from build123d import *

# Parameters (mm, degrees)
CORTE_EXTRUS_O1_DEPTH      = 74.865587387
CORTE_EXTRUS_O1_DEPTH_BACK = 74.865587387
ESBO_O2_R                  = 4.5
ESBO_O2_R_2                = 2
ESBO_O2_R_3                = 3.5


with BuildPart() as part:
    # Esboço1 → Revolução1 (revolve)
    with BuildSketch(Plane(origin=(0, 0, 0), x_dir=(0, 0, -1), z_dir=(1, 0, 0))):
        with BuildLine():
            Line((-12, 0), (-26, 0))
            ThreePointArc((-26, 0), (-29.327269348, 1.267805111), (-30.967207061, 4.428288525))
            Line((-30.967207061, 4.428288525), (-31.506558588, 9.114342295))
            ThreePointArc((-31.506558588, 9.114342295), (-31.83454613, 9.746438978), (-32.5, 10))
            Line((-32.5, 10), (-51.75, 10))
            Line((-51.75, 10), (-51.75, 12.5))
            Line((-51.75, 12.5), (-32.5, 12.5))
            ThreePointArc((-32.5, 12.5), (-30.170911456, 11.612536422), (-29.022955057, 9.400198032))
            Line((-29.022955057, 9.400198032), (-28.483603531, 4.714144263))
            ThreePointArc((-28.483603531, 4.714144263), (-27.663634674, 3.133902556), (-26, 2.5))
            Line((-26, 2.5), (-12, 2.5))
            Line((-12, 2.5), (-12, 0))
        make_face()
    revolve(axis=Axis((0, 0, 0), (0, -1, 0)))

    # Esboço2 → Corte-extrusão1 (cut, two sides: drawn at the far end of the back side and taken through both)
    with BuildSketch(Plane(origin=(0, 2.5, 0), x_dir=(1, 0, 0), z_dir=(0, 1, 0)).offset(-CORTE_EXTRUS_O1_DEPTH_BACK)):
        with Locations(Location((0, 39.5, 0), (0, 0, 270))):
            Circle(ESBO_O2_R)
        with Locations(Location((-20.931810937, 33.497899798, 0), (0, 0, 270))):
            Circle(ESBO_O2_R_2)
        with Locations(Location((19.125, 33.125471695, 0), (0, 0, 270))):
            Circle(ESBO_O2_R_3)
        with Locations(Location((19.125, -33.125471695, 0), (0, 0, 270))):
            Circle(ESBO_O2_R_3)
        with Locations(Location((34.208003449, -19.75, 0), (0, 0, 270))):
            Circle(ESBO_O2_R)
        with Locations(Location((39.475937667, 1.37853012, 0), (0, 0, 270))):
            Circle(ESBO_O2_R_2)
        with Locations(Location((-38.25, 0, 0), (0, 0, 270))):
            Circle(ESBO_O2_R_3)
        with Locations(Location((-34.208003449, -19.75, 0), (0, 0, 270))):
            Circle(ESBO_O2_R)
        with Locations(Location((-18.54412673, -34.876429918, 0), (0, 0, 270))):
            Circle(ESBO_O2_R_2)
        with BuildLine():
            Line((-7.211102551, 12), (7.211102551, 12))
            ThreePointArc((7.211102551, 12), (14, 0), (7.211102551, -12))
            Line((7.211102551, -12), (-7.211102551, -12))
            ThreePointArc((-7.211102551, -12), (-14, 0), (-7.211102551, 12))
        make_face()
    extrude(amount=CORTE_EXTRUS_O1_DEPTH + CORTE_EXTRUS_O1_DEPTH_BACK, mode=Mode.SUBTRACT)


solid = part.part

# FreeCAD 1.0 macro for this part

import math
import FreeCAD as App
import Part
import Sketcher

V = App.Vector

doc = App.newDocument("Part")
body = doc.addObject("PartDesign::Body", "Body")

sketch1 = body.newObject("Sketcher::SketchObject", "Sketch")
sketch1.AttachmentSupport = (doc.getObject("YZ_Plane"), [""])
sketch1.MapMode = "FlatFace"
sketch1.addGeometry([
    Part.LineSegment(V(0, 26, 0), V(0, 12, 0)),
    Part.LineSegment(V(0, 12, 0), V(2.5, 12, 0)),
    Part.LineSegment(V(2.5, 12, 0), V(2.5, 26, 0)),
    Part.ArcOfCircle(Part.Circle(V(5, 26, 0), V(0, 0, 1), 2.5), math.radians(96.565691), math.radians(180)),
    Part.LineSegment(V(4.714144, 28.483604, 0), V(9.400198, 29.022955, 0)),
    Part.ArcOfCircle(Part.Circle(V(9, 32.5, 0), V(0, 0, 1), 3.5), math.radians(-83.434309), math.radians(0)),
    Part.LineSegment(V(12.5, 32.5, 0), V(12.5, 51.75, 0)),
    Part.LineSegment(V(12.5, 51.75, 0), V(10, 51.75, 0)),
    Part.LineSegment(V(10, 51.75, 0), V(10, 32.5, 0)),
    Part.ArcOfCircle(Part.Circle(V(9, 32.5, 0), V(0, 0, 1), 1), math.radians(-83.434309), math.radians(0)),
    Part.LineSegment(V(9.114342, 31.506559, 0), V(4.428289, 30.967207, 0)),
    Part.ArcOfCircle(Part.Circle(V(5, 26, 0), V(0, 0, 1), 5), math.radians(96.565691), math.radians(180)),
], False)
sketch1.addConstraint([
    Sketcher.Constraint("Coincident", 0, 2, 1, 1),
    Sketcher.Constraint("Coincident", 1, 2, 2, 1),
    Sketcher.Constraint("Tangent", 2, 2, 3, 2),
    Sketcher.Constraint("Tangent", 3, 1, 4, 1),
    Sketcher.Constraint("Tangent", 4, 2, 5, 1),
    Sketcher.Constraint("Tangent", 5, 2, 6, 1),
    Sketcher.Constraint("Coincident", 6, 2, 7, 1),
    Sketcher.Constraint("Coincident", 7, 2, 8, 1),
    Sketcher.Constraint("Tangent", 8, 2, 9, 2),
    Sketcher.Constraint("Tangent", 9, 1, 10, 1),
    Sketcher.Constraint("Tangent", 10, 2, 11, 1),
    Sketcher.Constraint("Tangent", 11, 2, 0, 1),
    Sketcher.Constraint("Vertical", 0),
    Sketcher.Constraint("Horizontal", 1),
    Sketcher.Constraint("Vertical", 2),
    Sketcher.Constraint("Vertical", 6),
    Sketcher.Constraint("Horizontal", 7),
    Sketcher.Constraint("Vertical", 8),
    Sketcher.Constraint("Coincident", 9, 3, 5, 3),
    Sketcher.Constraint("Coincident", 11, 3, 3, 3),
    Sketcher.Constraint("PointOnObject", 0, 2, -2),
    Sketcher.Constraint("Parallel", 4, 10),
    Sketcher.Constraint("Radius", 9, 1.0),
    Sketcher.Constraint("Radius", 11, 5.0),
    Sketcher.Constraint("Radius", 3, 2.5),
    Sketcher.Constraint("DistanceY", 0, 2, 0, 1, 14.0),
    Sketcher.Constraint("DistanceY", -1, 1, 3, 3, 26.0),
    Sketcher.Constraint("DistanceX", -1, 1, 5, 3, 9.0),
    Sketcher.Constraint("DistanceY", 6, 1, 6, 2, 19.25),
    Sketcher.Constraint("DistanceY", -1, 1, 5, 3, 32.5),
])
revolution = body.newObject("PartDesign::Revolution", "Revolution")
revolution.Profile = sketch1
revolution.ReferenceAxis = (sketch1, ["H_Axis"])
revolution.Angle = 360

sketch2 = body.newObject("Sketcher::SketchObject", "Sketch001")
sketch2.AttachmentSupport = (doc.getObject("XZ_Plane"), [""])
sketch2.MapMode = "FlatFace"
sketch2.AttachmentOffset = App.Placement(V(0, 0, -2.5), App.Rotation())
sketch2.addGeometry([
    Part.Circle(V(0, -39.5, 0), V(0, 0, 1), 4.5),
    Part.Circle(V(-20.931811, -33.4979, 0), V(0, 0, 1), 2),
    Part.Circle(V(19.125, -33.125472, 0), V(0, 0, 1), 3.5),
    Part.Circle(V(19.125, 33.125472, 0), V(0, 0, 1), 3.5),
    Part.Circle(V(34.208003, 19.75, 0), V(0, 0, 1), 4.5),
    Part.Circle(V(39.475938, -1.37853, 0), V(0, 0, 1), 2),
    Part.Circle(V(-38.25, 0, 0), V(0, 0, 1), 3.5),
    Part.Circle(V(-34.208003, 19.75, 0), V(0, 0, 1), 4.5),
    Part.Circle(V(-18.544127, 34.87643, 0), V(0, 0, 1), 2),
    Part.LineSegment(V(7.211103, -12, 0), V(-7.211103, -12, 0)),
    Part.ArcOfCircle(Part.Circle(V(0, 0, 0), V(0, 0, 1), 14), math.radians(121.002719), math.radians(238.997281)),
    Part.LineSegment(V(-7.211103, 12, 0), V(7.211103, 12, 0)),
    Part.ArcOfCircle(Part.Circle(V(0, 0, 0), V(0, 0, 1), 14), math.radians(-58.997281), math.radians(58.997281)),
], False)
sketch2.addConstraint([
    Sketcher.Constraint("Coincident", 9, 2, 10, 2),
    Sketcher.Constraint("Coincident", 10, 1, 11, 1),
    Sketcher.Constraint("Coincident", 11, 2, 12, 2),
    Sketcher.Constraint("Coincident", 12, 1, 9, 1),
    Sketcher.Constraint("Horizontal", 9),
    Sketcher.Constraint("Horizontal", 11),
    Sketcher.Constraint("Coincident", 10, 3, -1, 1),
    Sketcher.Constraint("Coincident", 12, 3, -1, 1),
    Sketcher.Constraint("Equal", 2, 3),
    Sketcher.Constraint("Equal", 0, 4),
    Sketcher.Constraint("Equal", 1, 5),
    Sketcher.Constraint("Equal", 3, 6),
    Sketcher.Constraint("Equal", 4, 7),
    Sketcher.Constraint("Equal", 5, 8),
    Sketcher.Constraint("Equal", 10, 12),
    Sketcher.Constraint("Symmetric", 4, 3, 7, 3, -2),
    Sketcher.Constraint("Symmetric", 2, 3, 3, 3, -1),
    Sketcher.Constraint("PointOnObject", 0, 3, -2),
    Sketcher.Constraint("PointOnObject", 6, 3, -1),
    Sketcher.Constraint("Vertical", 9, 2, 10, 1),
    Sketcher.Constraint("Diameter", 0, 9.0),
    Sketcher.Constraint("Diameter", 1, 4.0),
    Sketcher.Constraint("Diameter", 2, 7.0),
    Sketcher.Constraint("Radius", 10, 14.0),
    Sketcher.Constraint("DistanceY", 9, 2, -1, 1, 12.0),
    Sketcher.Constraint("DistanceY", 0, 3, -1, 1, 39.5),
    Sketcher.Constraint("DistanceY", -1, 1, 4, 3, 19.75),
    Sketcher.Constraint("DistanceX", 6, 3, -1, 1, 38.25),
    Sketcher.Constraint("DistanceX", -1, 1, 2, 3, 19.125),
    Sketcher.Constraint("DistanceY", 5, 3, 3, 3, 34.504002),
    Sketcher.Constraint("DistanceY", 1, 3, -1, 1, 33.4979),
    Sketcher.Constraint("DistanceX", 7, 3, 10, 1, 26.996901),
    Sketcher.Constraint("DistanceX", 1, 3, -1, 1, 20.931811),
    Sketcher.Constraint("DistanceY", 2, 3, -1, 1, 33.125472),
    Sketcher.Constraint("DistanceY", -1, 1, 8, 3, 34.87643),
    Sketcher.Constraint("DistanceX", 1, 3, 5, 3, 60.407749),
    Sketcher.Constraint("DistanceX", 8, 3, 4, 3, 52.75213),
])
pocket1 = body.newObject("PartDesign::Pocket", "Pocket")
pocket1.Profile = sketch2
pocket1.Type = "ThroughAll"
pocket1.Midplane = True

doc.recompute()
